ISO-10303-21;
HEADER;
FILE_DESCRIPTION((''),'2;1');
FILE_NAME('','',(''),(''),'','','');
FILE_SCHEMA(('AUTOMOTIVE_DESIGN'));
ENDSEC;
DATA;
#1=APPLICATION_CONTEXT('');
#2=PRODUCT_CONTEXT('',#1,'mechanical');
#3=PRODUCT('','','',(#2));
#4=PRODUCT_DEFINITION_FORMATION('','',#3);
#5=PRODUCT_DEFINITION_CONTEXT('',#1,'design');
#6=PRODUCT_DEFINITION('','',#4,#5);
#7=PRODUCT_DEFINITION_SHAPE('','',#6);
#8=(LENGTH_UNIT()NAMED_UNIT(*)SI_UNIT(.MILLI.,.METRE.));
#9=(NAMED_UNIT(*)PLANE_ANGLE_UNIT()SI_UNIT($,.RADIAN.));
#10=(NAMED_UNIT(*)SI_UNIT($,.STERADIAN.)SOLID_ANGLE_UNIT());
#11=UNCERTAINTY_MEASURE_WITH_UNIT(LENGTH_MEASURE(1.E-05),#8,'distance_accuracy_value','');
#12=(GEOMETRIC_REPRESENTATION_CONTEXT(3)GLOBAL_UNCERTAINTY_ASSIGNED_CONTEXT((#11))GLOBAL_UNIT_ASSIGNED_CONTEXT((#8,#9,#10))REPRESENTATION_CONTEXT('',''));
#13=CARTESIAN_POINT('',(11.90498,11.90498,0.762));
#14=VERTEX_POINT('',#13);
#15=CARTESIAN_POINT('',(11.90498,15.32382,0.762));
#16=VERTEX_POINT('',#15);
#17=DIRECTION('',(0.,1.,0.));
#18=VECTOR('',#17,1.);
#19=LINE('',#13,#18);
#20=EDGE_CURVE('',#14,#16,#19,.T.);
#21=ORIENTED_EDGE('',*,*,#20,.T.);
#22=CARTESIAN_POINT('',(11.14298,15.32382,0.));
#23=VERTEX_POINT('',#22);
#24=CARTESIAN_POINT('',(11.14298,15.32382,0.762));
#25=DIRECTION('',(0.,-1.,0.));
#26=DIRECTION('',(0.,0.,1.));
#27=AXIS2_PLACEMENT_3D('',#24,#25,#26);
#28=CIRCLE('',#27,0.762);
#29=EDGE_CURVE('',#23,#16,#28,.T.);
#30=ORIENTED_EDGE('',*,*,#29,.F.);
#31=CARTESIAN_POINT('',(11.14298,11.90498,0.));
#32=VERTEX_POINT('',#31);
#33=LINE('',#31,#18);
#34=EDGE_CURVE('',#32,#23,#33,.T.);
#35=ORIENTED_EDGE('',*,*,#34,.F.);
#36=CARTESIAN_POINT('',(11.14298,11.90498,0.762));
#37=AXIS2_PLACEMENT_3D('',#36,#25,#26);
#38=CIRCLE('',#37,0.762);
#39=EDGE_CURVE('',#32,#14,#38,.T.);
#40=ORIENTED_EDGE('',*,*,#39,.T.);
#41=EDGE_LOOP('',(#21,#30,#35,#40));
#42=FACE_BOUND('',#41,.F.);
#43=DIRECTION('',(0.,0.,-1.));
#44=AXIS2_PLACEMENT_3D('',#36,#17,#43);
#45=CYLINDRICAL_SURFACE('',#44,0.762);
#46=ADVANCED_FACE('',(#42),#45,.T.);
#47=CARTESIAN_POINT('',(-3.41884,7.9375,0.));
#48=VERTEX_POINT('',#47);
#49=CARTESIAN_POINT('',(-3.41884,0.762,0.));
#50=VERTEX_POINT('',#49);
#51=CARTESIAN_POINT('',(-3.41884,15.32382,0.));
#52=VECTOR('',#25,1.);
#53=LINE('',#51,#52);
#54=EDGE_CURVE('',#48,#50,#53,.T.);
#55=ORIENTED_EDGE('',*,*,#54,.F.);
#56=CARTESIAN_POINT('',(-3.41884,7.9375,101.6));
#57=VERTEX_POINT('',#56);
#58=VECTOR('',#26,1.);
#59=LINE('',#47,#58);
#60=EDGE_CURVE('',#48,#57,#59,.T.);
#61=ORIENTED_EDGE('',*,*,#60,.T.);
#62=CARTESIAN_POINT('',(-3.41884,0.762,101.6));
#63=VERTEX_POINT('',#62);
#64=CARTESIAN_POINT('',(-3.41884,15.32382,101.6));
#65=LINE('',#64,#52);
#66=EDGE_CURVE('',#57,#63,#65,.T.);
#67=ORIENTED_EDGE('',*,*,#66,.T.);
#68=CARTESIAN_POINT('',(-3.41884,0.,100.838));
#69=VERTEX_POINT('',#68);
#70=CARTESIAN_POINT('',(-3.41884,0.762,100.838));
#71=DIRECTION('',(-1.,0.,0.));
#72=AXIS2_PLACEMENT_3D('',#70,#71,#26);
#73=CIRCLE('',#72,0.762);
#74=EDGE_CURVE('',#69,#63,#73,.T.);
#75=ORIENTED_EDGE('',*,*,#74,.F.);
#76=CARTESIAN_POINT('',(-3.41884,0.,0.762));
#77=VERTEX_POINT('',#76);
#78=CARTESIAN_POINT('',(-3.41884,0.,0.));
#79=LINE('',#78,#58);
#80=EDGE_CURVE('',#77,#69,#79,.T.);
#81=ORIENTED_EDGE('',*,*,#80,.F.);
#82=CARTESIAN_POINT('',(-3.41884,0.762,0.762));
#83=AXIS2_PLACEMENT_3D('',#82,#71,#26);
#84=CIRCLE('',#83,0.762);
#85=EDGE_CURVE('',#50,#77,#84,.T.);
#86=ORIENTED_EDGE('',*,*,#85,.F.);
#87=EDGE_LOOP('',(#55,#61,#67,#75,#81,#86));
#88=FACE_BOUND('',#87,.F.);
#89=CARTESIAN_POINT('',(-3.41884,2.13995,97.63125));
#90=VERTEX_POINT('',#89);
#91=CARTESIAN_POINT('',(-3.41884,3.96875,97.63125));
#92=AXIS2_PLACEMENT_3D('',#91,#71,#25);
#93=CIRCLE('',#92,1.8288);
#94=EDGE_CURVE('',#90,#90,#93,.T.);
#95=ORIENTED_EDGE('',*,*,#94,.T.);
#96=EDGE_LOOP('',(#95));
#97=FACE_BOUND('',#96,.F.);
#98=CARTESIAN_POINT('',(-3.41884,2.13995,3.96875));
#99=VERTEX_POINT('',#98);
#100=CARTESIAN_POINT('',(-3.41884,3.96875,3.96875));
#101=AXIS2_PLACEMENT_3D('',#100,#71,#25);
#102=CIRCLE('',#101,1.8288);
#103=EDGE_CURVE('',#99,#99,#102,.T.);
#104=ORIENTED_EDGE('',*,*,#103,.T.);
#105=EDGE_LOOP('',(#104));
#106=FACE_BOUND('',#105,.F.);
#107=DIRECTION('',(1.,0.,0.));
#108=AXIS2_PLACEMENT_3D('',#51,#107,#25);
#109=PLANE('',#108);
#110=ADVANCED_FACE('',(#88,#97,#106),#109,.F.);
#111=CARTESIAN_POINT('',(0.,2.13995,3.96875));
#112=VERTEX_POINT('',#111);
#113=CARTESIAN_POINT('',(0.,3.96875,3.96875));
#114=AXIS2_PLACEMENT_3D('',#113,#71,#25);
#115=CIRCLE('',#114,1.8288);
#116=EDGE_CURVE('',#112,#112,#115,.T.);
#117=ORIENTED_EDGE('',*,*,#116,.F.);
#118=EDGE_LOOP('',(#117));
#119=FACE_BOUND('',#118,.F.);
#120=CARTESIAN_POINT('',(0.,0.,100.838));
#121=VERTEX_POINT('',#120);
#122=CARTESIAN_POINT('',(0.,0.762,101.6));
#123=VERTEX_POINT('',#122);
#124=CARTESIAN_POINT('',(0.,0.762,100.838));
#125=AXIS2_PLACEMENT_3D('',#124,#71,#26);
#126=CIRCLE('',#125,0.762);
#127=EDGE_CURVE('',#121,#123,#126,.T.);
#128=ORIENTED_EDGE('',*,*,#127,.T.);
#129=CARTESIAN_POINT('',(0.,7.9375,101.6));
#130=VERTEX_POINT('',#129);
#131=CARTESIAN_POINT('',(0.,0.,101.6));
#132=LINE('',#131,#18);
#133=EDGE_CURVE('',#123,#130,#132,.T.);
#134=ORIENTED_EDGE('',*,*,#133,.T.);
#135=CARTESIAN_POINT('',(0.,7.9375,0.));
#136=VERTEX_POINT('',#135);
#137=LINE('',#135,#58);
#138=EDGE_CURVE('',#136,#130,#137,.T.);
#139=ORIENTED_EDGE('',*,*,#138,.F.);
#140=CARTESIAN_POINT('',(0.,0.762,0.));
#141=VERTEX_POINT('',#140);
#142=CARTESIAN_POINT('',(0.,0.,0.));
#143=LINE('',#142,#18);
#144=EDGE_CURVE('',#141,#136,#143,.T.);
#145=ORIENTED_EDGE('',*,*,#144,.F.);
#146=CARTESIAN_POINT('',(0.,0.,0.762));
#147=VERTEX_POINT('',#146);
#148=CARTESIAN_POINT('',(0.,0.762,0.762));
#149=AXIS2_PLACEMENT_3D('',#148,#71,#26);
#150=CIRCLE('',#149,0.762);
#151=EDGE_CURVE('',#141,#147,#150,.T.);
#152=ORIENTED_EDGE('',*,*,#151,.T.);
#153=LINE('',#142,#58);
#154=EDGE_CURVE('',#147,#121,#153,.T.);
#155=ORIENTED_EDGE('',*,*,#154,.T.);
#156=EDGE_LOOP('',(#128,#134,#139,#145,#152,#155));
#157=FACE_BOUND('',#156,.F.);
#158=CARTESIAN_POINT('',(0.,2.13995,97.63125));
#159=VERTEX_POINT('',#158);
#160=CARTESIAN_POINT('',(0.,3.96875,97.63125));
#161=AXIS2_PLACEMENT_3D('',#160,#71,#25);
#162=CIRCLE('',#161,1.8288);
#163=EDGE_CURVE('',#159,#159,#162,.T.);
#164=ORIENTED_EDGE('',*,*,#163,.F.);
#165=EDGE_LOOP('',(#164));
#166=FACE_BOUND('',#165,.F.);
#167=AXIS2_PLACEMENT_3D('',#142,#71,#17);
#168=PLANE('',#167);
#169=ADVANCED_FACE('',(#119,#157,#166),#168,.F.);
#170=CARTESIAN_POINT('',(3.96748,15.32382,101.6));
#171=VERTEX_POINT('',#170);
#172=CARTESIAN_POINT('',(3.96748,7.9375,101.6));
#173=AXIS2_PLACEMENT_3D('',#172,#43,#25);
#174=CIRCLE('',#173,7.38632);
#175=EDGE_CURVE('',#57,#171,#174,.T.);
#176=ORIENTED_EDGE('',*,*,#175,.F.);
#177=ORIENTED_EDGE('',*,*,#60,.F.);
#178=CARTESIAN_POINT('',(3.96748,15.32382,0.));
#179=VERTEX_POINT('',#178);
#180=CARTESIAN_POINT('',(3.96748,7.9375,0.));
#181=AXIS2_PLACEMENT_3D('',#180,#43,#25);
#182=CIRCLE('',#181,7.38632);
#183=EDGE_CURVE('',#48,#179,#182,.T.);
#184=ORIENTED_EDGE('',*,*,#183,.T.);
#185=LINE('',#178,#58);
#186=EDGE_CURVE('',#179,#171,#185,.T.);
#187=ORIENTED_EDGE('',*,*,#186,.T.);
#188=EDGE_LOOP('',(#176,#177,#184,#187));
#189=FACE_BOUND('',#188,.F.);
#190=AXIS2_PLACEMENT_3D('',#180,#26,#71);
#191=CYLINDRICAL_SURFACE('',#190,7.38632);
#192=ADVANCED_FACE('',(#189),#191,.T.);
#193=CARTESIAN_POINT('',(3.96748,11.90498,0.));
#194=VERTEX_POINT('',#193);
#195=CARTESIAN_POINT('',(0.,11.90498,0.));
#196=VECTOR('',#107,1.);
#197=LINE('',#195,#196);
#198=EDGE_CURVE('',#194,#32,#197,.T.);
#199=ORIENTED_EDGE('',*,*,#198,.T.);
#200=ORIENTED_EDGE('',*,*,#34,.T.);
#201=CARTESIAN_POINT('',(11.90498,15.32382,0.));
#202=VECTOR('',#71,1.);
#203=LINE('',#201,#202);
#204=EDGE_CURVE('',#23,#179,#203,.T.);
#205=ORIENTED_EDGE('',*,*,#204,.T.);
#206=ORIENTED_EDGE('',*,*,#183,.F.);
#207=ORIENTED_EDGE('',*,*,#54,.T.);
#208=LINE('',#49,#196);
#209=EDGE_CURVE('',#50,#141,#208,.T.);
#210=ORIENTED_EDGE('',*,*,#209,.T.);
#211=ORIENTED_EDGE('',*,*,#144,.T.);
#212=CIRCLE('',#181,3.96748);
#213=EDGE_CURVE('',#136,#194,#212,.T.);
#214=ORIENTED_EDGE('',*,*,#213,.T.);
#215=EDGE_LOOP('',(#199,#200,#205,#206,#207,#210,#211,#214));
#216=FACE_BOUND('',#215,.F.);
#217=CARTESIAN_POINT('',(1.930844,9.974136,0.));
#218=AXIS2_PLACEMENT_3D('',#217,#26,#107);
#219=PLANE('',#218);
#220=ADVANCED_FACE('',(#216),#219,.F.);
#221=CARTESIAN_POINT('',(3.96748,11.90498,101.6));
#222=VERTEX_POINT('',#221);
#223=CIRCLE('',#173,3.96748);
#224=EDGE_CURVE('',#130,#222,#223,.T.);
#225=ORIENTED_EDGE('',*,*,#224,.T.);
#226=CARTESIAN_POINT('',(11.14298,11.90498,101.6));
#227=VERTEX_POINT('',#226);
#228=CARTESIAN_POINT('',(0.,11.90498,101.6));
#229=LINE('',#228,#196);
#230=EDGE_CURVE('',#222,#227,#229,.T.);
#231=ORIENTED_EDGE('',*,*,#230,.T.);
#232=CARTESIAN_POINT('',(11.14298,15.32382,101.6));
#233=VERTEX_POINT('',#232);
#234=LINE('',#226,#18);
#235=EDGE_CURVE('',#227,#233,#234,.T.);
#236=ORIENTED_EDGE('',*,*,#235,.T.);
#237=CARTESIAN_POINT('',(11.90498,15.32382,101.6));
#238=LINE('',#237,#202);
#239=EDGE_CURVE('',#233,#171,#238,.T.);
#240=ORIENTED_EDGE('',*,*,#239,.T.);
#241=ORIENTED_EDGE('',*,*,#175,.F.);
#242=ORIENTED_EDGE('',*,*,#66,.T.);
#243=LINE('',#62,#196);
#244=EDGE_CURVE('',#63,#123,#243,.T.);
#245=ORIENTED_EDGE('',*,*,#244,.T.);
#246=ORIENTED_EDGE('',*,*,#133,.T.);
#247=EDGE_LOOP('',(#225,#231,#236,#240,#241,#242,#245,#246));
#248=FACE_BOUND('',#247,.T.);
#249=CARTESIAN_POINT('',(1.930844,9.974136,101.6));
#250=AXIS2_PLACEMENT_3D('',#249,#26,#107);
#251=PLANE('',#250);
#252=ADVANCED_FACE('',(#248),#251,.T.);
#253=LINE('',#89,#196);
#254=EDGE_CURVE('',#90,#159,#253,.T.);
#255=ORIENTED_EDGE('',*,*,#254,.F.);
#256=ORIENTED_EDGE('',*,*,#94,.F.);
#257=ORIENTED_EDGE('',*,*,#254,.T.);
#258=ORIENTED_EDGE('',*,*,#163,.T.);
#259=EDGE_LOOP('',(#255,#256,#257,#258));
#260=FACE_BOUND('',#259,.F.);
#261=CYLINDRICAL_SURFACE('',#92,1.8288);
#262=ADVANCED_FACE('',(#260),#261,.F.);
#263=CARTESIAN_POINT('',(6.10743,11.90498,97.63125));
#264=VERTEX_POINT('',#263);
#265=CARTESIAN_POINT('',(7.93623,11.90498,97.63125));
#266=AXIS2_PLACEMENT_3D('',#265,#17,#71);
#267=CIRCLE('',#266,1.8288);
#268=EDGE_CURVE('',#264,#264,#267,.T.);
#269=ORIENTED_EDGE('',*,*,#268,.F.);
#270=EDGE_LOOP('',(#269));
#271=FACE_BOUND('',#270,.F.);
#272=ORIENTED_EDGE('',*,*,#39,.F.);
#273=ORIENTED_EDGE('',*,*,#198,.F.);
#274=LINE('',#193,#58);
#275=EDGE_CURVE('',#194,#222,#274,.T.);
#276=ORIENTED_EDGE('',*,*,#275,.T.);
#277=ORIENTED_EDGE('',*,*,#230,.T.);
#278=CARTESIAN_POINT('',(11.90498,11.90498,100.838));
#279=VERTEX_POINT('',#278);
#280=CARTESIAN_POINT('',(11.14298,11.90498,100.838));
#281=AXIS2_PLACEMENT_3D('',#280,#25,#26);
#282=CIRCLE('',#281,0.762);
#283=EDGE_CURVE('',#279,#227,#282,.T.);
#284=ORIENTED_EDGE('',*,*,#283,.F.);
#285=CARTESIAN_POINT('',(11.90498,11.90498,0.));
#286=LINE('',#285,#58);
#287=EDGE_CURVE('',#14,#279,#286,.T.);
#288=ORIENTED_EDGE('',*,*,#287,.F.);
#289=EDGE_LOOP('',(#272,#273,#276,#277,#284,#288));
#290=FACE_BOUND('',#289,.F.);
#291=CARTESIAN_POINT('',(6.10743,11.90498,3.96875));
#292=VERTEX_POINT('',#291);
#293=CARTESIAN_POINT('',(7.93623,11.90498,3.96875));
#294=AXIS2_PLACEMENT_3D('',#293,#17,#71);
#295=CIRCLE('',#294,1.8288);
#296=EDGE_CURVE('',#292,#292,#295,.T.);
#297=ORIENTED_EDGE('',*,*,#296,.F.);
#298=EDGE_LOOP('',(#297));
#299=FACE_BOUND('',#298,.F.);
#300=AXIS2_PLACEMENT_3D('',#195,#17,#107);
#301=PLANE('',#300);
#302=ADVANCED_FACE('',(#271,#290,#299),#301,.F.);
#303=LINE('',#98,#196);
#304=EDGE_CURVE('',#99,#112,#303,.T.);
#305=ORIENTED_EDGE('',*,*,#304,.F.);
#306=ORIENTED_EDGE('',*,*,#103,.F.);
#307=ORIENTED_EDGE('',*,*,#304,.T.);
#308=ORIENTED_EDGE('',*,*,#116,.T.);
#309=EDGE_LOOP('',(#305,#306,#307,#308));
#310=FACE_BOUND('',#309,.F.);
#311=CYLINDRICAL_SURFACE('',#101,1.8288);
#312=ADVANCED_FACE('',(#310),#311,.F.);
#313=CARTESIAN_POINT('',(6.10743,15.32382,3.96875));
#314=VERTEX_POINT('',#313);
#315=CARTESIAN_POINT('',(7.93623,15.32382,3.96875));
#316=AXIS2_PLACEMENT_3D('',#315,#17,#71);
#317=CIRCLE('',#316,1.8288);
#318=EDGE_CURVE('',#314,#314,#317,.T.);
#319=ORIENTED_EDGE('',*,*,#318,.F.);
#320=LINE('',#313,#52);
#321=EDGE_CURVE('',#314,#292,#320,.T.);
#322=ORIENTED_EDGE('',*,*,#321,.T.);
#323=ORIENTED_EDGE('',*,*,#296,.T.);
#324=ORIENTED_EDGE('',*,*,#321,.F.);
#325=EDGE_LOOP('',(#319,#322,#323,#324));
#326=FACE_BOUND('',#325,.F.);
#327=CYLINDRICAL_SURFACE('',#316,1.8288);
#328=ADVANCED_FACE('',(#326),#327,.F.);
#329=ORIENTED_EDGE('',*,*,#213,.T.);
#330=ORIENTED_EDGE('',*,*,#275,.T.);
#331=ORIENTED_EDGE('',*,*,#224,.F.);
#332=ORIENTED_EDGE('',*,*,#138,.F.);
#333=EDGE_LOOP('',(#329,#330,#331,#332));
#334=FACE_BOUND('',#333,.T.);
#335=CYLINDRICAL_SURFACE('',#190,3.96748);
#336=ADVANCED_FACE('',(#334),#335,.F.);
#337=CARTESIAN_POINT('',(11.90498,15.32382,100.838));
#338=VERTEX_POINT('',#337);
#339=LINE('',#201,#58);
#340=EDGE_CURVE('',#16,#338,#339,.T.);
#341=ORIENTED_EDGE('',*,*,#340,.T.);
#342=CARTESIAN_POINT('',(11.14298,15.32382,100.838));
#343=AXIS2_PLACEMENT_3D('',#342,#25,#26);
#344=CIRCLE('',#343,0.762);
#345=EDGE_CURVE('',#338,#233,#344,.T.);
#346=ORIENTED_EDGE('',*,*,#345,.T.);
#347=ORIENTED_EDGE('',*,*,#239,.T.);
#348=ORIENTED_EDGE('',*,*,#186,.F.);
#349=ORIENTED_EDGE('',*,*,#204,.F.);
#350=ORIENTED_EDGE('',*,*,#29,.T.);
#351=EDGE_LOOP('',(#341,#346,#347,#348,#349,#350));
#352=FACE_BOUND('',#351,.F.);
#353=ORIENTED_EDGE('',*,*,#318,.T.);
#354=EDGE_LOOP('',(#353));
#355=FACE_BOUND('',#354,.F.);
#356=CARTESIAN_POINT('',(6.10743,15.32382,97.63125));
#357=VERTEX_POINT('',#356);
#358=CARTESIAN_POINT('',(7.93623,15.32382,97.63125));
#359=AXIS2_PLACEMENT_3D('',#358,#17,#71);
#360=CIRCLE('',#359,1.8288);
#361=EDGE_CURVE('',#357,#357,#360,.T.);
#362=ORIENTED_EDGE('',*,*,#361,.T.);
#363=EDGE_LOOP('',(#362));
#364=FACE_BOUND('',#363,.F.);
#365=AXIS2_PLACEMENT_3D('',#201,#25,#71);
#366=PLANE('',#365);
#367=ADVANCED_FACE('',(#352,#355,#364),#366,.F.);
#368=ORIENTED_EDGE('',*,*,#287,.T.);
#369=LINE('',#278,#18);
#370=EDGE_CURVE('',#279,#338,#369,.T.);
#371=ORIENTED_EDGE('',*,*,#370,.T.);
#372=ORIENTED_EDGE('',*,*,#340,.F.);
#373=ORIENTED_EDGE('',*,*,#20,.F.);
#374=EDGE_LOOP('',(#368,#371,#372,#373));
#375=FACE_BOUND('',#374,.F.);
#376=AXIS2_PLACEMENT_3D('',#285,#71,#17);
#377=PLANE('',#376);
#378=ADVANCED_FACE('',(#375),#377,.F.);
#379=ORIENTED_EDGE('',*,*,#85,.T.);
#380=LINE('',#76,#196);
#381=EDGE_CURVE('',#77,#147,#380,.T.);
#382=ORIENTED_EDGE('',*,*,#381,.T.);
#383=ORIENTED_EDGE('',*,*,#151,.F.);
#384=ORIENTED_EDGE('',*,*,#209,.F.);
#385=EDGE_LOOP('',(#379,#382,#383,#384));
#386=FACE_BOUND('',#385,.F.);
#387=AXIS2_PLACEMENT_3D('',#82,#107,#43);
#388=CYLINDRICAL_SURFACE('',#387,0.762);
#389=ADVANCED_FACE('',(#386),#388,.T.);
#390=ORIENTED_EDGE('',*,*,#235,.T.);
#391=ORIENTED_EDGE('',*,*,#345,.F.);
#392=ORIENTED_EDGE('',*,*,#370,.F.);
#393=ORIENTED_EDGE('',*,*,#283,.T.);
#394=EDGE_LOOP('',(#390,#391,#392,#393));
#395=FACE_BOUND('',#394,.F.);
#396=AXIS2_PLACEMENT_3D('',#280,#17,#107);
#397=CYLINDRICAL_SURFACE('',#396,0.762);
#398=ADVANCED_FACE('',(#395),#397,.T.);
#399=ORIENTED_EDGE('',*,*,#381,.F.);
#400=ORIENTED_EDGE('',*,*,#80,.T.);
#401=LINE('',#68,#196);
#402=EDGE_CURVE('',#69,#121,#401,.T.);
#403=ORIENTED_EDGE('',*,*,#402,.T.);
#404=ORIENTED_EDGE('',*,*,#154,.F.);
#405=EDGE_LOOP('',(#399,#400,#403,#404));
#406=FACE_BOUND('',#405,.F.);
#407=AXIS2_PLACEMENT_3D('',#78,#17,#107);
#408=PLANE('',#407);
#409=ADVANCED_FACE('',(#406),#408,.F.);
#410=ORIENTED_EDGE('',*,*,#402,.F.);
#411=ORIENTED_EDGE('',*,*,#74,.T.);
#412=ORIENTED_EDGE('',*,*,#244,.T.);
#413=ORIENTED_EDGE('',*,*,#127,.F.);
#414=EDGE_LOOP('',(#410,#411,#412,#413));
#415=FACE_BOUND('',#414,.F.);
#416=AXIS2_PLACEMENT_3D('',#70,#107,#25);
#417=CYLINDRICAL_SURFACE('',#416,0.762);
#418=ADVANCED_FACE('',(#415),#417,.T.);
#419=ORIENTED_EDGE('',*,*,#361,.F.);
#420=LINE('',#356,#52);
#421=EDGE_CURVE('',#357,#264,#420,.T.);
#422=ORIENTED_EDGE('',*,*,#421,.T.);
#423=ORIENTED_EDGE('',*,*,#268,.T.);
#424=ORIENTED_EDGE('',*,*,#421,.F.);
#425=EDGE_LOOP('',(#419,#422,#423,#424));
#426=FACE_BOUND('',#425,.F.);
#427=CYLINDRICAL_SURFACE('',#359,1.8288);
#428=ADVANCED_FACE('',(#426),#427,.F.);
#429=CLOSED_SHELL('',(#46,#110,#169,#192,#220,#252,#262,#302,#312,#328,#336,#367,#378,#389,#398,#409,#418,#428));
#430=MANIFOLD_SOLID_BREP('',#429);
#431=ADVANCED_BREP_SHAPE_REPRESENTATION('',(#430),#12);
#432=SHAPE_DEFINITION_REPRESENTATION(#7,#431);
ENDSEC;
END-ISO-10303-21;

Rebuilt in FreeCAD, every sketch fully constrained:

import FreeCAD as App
import Part
import Sketcher

V = App.Vector
Q = App.Units.Quantity


def edges_at(feature, points):
    """Names of the edges that pass closest to the given points."""
    edges = feature.Shape.Edges
    near = lambda p: min(range(len(edges)), key=lambda i: edges[i].distToShape(Part.Vertex(*p))[0])
    return sorted({f"Edge{near(p) + 1}" for p in points})


def add_polygon(sketch, points):
    """Adds a closed chain of lines whose ends are joined by coincident constraints."""
    first, n = sketch.GeometryCount, len(points)
    for a, b in zip(points, points[1:] + points[:1]):
        sketch.addGeometry(Part.LineSegment(App.Vector(*a, 0), App.Vector(*b, 0)), False)
    for i in range(n):
        sketch.addConstraint(Sketcher.Constraint("Coincident", first + i, 2, first + (i + 1) % n, 1))

doc = App.newDocument("Part")
body = doc.addObject("PartDesign::Body", "Body")

sketch1 = body.newObject("Sketcher::SketchObject", "Sketch")
sketch1.AttachmentSupport = (doc.getObject("XY_Plane"), [""])
sketch1.MapMode = "FlatFace"
add_polygon(sketch1, [(-3.4, 0), (0, 0), (0, 11.9), (11.9, 11.9), (11.9, 15.3), (-3.4, 15.3)])
sketch1.addConstraint([
    Sketcher.Constraint("Horizontal", 0),
    Sketcher.Constraint("Vertical", 1),
    Sketcher.Constraint("Horizontal", 2),
    Sketcher.Constraint("Vertical", 3),
    Sketcher.Constraint("Horizontal", 4),
    Sketcher.Constraint("Vertical", 5),
    Sketcher.Constraint("Coincident", 0, 2, -1, 1),
    Sketcher.Constraint("Equal", 2, 1),
    Sketcher.Constraint("Equal", 0, 3),
    Sketcher.Constraint("DistanceX", 0, 1, 0, 2, Q("0.1346 in")),
    Sketcher.Constraint("DistanceX", 2, 1, 2, 2, Q("0.4687 in")),
])
pad1 = body.newObject("PartDesign::Pad", "Pad")
pad1.Profile = sketch1
pad1.Length = Q("4 in")
doc.recompute()

fillet = body.newObject("PartDesign::Fillet", "Fillet")
fillet.Base = (pad1, edges_at(pad1, [(0, 11.905, 50.8)]))
fillet.Radius = Q("0.1562 in")
doc.recompute()

fillet2 = body.newObject("PartDesign::Fillet", "Fillet001")
fillet2.Base = (fillet, edges_at(fillet, [(-3.419, 15.324, 50.8)]))
fillet2.Radius = Q("0.2908 in")

sketch2 = body.newObject("Sketcher::SketchObject", "Sketch001")
sketch2.AttachmentSupport = (doc.getObject("XZ_Plane"), [""])
sketch2.MapMode = "FlatFace"
sketch2.AttachmentOffset = App.Placement(V(0, 0, -0.6033 * 25.4), App.Rotation())
sketch2.addGeometry([
    Part.Circle(V(7.9, 97.6, 0), V(0, 0, 1), 1.8),
    Part.Circle(V(7.9, 4, 0), V(0, 0, 1), 1.8),
], False)
sketch2.addConstraint([
    Sketcher.Constraint("Equal", 0, 1),
    Sketcher.Constraint("Vertical", 0, 3, 1, 3),
    Sketcher.Constraint("Diameter", 0, Q("0.144 in")),
    Sketcher.Constraint("DistanceY", -1, 1, 0, 3, Q("3.84375 in")),
    Sketcher.Constraint("DistanceY", -1, 1, 1, 3, Q("0.15625 in")),
    Sketcher.Constraint("DistanceX", -1, 1, 0, 3, 7.93623),
])
pocket1 = body.newObject("PartDesign::Pocket", "Pocket")
pocket1.Profile = sketch2
pocket1.Type = "ThroughAll"
pocket1.Reversed = True

sketch3 = body.newObject("Sketcher::SketchObject", "Sketch002")
sketch3.AttachmentSupport = (doc.getObject("YZ_Plane"), [""])
sketch3.MapMode = "FlatFace"
sketch3.AttachmentOffset = App.Placement(V(0, 0, -0.1346 * 25.4), App.Rotation())
sketch3.addGeometry([
    Part.Circle(V(4, 97.6, 0), V(0, 0, 1), 1.8),
    Part.Circle(V(4, 4, 0), V(0, 0, 1), 1.8),
], False)
sketch3.addConstraint([
    Sketcher.Constraint("Equal", 0, 1),
    Sketcher.Constraint("Vertical", 0, 3, 1, 3),
    Sketcher.Constraint("Diameter", 0, Q("0.144 in")),
    Sketcher.Constraint("DistanceX", -1, 1, 0, 3, Q("0.15625 in")),
    Sketcher.Constraint("DistanceY", -1, 1, 0, 3, Q("3.84375 in")),
    Sketcher.Constraint("DistanceY", -1, 1, 1, 3, Q("0.15625 in")),
])
pocket2 = body.newObject("PartDesign::Pocket", "Pocket001")
pocket2.Profile = sketch3
pocket2.Type = "ThroughAll"
pocket2.Reversed = True
doc.recompute()

fillet3 = body.newObject("PartDesign::Fillet", "Fillet002")
fillet3.Base = (pocket2, edges_at(pocket2, [
    (-1.709, 0, 101.6),
    (11.905, 13.614, 101.6),
    (11.905, 13.614, 0),
    (-1.709, 0, 0),
]))
fillet3.Radius = Q("0.03 in")

doc.recompute()
